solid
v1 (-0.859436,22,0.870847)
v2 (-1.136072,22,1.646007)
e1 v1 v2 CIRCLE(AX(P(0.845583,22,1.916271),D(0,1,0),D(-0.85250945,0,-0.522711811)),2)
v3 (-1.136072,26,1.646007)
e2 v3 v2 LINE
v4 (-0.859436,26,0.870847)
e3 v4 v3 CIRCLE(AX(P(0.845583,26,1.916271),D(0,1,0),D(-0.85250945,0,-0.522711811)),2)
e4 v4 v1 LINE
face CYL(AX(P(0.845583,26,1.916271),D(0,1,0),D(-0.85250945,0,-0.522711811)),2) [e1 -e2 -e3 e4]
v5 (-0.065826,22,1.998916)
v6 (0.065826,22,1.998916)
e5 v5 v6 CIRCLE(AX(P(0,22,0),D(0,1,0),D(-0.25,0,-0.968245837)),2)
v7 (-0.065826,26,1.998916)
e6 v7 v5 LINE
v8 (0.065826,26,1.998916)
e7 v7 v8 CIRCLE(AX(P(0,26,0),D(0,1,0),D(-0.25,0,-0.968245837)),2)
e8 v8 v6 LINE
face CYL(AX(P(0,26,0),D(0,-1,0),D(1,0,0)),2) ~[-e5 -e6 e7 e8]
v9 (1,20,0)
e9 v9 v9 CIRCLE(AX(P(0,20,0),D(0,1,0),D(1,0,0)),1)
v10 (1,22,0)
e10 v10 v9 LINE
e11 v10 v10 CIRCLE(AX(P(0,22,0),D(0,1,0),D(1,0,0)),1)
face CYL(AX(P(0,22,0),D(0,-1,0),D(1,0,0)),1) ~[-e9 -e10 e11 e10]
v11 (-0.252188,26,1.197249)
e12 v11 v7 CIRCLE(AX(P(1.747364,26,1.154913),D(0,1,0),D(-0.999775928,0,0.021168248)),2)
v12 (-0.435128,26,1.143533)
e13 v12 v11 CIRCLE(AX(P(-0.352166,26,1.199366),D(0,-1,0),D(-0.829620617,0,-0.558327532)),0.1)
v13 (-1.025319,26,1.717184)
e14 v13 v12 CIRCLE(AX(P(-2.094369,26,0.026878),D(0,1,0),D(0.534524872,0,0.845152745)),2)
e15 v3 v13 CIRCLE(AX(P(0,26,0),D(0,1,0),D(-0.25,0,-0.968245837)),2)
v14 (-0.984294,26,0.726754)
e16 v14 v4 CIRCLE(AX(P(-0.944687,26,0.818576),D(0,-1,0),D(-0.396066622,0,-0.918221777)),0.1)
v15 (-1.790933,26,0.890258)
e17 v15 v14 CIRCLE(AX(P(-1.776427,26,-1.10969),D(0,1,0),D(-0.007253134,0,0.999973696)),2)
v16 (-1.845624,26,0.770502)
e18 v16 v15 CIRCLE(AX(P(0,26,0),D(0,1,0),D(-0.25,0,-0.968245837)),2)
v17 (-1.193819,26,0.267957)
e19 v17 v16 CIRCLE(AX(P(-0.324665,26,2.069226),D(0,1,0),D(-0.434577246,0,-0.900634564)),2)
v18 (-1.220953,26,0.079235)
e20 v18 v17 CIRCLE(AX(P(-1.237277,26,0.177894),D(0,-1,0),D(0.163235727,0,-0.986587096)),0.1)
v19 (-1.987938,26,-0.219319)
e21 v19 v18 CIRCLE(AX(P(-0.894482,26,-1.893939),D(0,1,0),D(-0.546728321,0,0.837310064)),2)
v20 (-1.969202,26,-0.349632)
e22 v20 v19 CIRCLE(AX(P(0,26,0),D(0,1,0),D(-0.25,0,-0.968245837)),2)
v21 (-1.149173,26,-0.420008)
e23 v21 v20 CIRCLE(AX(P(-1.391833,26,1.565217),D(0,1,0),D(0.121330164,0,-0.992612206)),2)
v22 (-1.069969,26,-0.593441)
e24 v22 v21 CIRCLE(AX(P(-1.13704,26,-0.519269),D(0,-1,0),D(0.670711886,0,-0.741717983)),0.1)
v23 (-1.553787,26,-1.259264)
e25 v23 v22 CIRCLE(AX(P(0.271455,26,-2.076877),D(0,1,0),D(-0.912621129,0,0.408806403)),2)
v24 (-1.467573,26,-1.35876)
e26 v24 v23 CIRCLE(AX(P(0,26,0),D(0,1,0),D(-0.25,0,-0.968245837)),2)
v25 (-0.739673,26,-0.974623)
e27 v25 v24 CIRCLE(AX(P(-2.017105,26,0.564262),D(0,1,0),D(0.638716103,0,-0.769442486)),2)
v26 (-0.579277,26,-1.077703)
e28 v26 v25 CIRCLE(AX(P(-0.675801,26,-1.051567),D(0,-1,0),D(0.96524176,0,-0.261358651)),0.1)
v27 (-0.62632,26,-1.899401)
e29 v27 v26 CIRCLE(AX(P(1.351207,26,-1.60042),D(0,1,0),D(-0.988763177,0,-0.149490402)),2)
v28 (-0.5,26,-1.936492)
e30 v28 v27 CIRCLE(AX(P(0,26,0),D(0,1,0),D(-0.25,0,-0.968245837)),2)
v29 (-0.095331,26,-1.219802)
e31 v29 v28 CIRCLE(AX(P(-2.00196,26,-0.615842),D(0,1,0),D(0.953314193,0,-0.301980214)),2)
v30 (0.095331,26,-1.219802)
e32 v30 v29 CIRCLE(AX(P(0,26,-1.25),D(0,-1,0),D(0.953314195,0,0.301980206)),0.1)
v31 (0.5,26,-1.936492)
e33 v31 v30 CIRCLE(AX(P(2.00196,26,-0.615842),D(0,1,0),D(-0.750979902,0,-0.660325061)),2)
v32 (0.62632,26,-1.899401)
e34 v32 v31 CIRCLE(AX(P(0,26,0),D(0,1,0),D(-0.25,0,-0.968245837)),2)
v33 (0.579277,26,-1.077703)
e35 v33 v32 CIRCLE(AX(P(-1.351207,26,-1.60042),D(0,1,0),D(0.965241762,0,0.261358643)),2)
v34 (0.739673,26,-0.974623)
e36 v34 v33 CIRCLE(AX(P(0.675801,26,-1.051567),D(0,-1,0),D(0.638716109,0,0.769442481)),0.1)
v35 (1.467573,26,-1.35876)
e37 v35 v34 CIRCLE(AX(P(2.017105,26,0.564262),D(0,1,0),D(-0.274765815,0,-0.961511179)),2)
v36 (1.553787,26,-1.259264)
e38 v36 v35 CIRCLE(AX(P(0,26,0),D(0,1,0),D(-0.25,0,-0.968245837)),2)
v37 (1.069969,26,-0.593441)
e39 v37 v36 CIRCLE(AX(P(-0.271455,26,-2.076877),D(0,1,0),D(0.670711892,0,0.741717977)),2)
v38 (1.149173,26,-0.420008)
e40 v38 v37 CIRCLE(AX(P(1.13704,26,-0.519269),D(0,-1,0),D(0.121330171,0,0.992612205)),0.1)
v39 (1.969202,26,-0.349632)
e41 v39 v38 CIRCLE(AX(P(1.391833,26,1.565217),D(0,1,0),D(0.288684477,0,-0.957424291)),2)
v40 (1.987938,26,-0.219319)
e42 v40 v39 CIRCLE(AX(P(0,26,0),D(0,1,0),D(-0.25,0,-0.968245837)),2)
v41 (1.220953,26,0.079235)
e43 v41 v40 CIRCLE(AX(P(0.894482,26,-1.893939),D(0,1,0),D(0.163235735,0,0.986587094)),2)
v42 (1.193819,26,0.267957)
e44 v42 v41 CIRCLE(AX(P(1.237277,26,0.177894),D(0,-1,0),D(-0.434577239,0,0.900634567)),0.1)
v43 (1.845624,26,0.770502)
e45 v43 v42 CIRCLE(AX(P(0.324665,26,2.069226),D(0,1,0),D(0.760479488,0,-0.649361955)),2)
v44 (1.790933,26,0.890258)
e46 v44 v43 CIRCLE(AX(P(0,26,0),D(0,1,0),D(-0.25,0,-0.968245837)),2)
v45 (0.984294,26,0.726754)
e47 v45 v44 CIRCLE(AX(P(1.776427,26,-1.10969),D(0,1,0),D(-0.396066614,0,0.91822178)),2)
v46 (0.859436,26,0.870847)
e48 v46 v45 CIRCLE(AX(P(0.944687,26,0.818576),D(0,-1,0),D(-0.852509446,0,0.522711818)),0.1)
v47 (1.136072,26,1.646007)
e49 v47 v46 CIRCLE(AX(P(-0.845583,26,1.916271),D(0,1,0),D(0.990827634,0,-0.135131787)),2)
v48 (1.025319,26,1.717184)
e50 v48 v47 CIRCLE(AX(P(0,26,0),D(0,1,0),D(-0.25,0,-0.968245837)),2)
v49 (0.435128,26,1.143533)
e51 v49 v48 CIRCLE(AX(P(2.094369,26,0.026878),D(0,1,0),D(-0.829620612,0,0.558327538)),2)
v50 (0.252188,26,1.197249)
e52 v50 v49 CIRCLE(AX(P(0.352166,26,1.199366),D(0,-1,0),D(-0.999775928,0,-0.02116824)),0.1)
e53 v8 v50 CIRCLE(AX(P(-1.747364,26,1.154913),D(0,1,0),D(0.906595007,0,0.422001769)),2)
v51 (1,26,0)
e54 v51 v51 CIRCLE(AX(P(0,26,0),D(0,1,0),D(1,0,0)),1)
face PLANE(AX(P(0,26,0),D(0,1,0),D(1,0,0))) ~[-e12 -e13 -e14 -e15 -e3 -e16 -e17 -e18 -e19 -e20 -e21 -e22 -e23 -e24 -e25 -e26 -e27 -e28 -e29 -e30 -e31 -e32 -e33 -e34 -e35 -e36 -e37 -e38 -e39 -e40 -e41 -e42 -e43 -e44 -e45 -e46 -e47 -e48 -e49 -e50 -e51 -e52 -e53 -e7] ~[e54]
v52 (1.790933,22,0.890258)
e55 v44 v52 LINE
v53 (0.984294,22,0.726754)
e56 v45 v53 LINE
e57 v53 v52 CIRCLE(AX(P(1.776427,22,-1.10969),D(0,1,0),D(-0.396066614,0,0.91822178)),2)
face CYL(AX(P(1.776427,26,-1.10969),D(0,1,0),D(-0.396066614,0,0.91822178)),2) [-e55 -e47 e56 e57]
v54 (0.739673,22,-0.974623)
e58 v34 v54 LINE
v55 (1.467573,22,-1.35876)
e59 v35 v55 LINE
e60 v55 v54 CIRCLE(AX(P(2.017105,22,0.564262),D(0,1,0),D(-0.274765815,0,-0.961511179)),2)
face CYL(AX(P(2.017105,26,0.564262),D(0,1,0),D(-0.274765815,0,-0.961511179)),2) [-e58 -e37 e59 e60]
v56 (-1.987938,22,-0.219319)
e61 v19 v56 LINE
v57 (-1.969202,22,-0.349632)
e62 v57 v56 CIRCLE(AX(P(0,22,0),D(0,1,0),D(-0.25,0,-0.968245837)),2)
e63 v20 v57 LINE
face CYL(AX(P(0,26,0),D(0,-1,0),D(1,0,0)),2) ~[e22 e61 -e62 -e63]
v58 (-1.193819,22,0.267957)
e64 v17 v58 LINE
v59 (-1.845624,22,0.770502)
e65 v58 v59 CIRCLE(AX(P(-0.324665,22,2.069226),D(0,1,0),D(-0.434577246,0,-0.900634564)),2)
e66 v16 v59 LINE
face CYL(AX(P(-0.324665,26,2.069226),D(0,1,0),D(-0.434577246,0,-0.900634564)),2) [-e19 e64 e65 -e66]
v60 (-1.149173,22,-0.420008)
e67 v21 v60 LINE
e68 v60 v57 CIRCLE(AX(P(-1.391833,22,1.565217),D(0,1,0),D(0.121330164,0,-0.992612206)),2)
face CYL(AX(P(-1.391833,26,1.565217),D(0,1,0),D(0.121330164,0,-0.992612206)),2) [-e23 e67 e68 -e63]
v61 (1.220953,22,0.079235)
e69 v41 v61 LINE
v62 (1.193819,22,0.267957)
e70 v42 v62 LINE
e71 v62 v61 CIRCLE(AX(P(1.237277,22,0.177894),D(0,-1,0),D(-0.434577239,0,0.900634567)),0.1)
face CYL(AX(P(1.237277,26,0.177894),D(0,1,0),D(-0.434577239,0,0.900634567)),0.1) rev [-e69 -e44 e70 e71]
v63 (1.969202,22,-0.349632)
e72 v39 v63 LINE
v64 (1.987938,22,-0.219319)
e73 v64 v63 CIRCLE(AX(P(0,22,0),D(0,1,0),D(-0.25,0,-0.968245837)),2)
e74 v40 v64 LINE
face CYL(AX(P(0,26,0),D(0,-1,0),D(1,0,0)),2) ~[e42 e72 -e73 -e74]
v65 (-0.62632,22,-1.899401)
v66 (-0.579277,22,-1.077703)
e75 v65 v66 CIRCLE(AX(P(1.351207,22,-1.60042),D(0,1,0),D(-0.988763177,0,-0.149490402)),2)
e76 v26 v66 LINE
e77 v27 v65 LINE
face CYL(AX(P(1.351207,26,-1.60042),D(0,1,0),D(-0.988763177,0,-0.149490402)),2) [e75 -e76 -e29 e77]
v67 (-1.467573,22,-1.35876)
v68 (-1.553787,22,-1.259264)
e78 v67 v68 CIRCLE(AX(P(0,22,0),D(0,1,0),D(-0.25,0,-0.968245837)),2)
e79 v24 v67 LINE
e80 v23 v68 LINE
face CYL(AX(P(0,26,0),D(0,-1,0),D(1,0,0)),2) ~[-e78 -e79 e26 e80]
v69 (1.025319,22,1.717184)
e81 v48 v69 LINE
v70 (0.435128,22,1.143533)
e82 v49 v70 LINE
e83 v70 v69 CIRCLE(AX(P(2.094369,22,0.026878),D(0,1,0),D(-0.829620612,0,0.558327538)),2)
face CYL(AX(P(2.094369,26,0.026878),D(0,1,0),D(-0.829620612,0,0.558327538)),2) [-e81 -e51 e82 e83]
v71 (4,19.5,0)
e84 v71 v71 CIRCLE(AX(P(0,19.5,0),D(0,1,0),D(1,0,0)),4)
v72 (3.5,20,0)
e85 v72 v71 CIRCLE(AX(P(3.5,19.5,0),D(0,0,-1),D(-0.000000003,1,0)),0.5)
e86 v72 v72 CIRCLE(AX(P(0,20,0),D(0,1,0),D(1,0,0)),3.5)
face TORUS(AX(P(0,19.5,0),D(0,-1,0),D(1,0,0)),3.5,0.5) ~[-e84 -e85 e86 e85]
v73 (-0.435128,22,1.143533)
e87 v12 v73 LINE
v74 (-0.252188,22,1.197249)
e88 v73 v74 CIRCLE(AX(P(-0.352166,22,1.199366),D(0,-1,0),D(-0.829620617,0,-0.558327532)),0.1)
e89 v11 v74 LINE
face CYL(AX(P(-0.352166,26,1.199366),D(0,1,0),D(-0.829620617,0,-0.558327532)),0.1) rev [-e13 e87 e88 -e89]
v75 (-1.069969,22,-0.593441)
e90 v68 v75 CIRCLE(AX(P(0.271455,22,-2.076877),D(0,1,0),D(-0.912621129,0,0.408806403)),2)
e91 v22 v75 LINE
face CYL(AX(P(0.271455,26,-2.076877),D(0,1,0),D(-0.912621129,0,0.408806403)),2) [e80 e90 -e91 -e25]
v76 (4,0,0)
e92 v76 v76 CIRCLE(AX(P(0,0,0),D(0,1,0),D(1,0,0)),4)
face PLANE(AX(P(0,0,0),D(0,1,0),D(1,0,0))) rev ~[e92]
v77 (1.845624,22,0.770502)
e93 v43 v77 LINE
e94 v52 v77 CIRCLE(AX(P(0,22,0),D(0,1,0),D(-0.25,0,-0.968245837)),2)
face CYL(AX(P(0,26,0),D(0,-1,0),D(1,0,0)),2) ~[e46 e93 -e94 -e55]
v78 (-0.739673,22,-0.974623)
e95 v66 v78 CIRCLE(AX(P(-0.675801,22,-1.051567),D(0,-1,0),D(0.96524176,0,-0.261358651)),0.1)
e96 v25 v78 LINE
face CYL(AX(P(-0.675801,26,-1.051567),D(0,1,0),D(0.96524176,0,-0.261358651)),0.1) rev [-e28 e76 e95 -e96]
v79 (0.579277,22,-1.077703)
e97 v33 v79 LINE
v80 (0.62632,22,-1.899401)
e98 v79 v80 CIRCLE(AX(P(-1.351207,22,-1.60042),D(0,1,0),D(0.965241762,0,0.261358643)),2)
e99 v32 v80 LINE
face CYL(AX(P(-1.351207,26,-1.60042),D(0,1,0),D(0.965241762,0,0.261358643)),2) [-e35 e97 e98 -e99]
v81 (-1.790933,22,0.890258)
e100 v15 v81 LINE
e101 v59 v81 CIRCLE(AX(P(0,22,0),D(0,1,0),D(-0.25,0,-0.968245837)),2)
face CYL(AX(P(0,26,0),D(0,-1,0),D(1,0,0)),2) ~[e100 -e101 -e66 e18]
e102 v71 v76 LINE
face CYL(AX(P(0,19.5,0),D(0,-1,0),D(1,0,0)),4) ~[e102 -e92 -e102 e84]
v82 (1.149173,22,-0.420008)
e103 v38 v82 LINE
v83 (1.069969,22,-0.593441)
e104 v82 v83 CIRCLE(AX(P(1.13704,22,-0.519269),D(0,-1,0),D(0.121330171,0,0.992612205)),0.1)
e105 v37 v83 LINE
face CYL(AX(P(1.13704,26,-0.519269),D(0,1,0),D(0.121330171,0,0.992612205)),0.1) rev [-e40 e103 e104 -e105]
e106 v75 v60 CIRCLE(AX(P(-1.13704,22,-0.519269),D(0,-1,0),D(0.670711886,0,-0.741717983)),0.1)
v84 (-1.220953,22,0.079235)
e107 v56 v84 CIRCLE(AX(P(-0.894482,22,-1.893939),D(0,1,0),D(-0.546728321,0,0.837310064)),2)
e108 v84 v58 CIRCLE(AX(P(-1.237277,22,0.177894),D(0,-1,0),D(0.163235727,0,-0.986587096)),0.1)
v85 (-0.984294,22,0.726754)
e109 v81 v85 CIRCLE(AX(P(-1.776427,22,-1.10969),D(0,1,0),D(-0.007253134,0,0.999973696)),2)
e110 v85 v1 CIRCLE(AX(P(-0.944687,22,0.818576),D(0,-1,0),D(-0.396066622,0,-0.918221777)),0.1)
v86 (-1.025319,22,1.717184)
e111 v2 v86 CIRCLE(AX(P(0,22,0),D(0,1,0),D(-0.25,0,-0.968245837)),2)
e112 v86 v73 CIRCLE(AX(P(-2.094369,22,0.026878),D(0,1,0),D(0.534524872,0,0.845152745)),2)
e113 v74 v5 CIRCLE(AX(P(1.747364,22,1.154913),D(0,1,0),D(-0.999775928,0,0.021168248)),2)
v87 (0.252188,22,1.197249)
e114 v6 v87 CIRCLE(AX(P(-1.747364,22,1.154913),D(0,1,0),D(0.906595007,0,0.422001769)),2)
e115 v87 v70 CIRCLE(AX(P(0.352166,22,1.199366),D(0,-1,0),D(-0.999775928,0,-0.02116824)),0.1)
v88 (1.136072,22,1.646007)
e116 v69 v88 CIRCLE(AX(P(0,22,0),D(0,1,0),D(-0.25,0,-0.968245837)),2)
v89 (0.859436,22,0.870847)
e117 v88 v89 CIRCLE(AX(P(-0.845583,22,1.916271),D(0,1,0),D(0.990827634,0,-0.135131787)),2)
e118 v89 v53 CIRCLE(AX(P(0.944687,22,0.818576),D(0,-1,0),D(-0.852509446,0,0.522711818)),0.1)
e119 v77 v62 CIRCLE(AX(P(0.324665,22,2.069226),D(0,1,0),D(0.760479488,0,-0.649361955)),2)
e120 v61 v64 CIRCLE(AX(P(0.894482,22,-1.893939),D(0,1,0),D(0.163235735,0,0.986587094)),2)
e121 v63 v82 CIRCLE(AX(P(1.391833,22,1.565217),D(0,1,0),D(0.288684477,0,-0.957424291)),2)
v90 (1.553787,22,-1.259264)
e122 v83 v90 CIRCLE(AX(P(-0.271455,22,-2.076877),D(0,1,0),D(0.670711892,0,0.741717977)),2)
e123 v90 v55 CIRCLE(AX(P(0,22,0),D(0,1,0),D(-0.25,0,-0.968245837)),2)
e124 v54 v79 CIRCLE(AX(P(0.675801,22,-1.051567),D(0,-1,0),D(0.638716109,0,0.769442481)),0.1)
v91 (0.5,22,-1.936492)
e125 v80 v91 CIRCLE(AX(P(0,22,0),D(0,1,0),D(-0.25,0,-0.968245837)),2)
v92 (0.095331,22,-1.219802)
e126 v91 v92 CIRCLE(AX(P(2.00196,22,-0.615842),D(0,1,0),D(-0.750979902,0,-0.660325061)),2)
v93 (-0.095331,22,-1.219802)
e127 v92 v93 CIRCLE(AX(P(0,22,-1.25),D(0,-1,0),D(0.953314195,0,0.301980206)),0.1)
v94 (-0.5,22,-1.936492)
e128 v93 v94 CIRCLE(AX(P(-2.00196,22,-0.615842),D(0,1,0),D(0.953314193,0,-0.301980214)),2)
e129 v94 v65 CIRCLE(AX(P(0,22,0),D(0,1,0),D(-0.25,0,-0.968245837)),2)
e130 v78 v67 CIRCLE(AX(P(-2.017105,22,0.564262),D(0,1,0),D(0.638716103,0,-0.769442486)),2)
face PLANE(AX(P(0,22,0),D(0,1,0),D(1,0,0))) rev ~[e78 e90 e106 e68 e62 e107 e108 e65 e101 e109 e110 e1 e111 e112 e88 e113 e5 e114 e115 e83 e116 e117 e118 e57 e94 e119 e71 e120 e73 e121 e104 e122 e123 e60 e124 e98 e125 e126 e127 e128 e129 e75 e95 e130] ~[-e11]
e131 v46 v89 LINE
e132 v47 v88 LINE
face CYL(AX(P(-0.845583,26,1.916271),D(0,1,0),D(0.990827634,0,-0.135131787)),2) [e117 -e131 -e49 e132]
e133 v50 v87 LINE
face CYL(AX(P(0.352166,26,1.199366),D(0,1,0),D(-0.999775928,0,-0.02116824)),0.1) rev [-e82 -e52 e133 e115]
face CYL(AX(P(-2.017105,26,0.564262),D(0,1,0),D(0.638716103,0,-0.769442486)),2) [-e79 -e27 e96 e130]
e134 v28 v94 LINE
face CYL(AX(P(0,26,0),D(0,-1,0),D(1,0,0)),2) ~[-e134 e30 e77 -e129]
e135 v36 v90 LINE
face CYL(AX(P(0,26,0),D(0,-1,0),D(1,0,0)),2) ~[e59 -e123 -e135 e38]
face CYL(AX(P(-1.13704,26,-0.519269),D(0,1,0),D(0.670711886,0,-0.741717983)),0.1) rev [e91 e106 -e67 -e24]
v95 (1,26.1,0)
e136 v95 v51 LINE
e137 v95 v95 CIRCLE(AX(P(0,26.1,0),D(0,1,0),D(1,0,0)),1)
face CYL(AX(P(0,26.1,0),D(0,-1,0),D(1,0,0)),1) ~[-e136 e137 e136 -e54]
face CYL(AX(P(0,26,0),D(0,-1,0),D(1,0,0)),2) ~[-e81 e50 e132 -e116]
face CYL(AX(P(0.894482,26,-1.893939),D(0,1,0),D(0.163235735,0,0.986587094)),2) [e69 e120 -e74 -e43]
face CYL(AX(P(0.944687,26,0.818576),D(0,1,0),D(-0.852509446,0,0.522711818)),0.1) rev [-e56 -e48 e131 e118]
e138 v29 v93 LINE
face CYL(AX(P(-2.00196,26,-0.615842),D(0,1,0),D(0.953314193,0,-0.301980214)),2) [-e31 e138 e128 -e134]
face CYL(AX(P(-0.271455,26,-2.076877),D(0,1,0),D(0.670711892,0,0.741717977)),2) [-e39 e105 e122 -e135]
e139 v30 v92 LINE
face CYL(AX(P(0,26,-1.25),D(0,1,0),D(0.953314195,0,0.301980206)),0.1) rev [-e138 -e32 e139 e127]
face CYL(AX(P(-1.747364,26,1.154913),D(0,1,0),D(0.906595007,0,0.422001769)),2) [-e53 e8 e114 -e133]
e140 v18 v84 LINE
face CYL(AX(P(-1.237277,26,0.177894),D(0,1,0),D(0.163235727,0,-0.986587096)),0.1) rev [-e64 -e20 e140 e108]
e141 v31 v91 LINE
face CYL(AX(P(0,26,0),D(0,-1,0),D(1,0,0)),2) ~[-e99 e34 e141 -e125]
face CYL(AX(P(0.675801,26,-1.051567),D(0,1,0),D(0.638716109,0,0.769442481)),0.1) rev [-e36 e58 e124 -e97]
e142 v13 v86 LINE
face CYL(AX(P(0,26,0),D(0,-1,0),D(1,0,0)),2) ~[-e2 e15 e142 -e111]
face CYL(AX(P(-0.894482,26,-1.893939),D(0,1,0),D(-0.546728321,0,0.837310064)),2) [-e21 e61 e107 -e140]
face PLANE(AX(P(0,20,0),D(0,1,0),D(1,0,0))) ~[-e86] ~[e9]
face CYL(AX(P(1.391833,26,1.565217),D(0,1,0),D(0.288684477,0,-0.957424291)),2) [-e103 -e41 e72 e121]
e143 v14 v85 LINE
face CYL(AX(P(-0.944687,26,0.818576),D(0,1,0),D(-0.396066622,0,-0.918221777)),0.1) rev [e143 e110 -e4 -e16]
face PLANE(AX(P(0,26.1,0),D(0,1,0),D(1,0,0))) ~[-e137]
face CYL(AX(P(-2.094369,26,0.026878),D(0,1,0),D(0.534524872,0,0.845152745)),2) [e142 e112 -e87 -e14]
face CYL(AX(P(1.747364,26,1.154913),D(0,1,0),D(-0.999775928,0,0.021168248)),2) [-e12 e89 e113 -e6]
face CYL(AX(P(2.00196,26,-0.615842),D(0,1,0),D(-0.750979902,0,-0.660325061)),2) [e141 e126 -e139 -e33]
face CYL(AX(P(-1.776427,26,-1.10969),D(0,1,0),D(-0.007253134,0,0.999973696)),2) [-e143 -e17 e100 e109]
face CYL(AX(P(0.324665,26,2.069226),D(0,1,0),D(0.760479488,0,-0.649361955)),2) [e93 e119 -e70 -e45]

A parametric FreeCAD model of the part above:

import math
import FreeCAD as App
import Part
import Sketcher
from FreeCAD import Vector

doc = App.newDocument("Part")
body = doc.addObject("PartDesign::Body", "Body")

# Sketch on XY plane
sketch1 = doc.addObject("Sketcher::SketchObject", "Sketch")
body.addObject(sketch1)
sketch1.AttachmentSupport = (doc.XY_Plane, [""])
sketch1.MapMode = "FlatFace"
sketch1.addGeometry([
    Part.LineSegment(Vector(0, 26.1, 0), Vector(0, 0, 0)),  # 0
    Part.LineSegment(Vector(0, 0, 0), Vector(4, 0, 0)),  # 1
    Part.LineSegment(Vector(4, 0, 0), Vector(4, 19.5, 0)),  # 2
    Part.ArcOfCircle(Part.Circle(Vector(3.5, 19.5, 0), Vector(0, 0, 1), 0.5), math.radians(0), math.radians(90)),  # 3
    Part.LineSegment(Vector(3.5, 20, 0), Vector(1, 20, 0)),  # 4
    Part.LineSegment(Vector(1, 20, 0), Vector(1, 22, 0)),  # 5
    Part.LineSegment(Vector(1, 22, 0), Vector(2, 22, 0)),  # 6
    Part.LineSegment(Vector(2, 22, 0), Vector(2, 26, 0)),  # 7
    Part.LineSegment(Vector(2, 26, 0), Vector(1, 26, 0)),  # 8
    Part.LineSegment(Vector(1, 26, 0), Vector(1, 26.1, 0)),  # 9
    Part.LineSegment(Vector(1, 26.1, 0), Vector(0, 26.1, 0)),  # 10
], False)
sketch1.addConstraint([
    Sketcher.Constraint("Coincident", 0, 2, 1, 1),
    Sketcher.Constraint("Coincident", 1, 2, 2, 1),
    Sketcher.Constraint("Tangent", 2, 2, 3, 1),
    Sketcher.Constraint("Tangent", 3, 2, 4, 1),
    Sketcher.Constraint("Coincident", 4, 2, 5, 1),
    Sketcher.Constraint("Coincident", 5, 2, 6, 1),
    Sketcher.Constraint("Coincident", 6, 2, 7, 1),
    Sketcher.Constraint("Coincident", 7, 2, 8, 1),
    Sketcher.Constraint("Coincident", 8, 2, 9, 1),
    Sketcher.Constraint("Coincident", 9, 2, 10, 1),
    Sketcher.Constraint("Coincident", 10, 2, 0, 1),
    Sketcher.Constraint("Vertical", 0),
    Sketcher.Constraint("Horizontal", 1),
    Sketcher.Constraint("Vertical", 2),
    Sketcher.Constraint("Horizontal", 4),
    Sketcher.Constraint("Vertical", 5),
    Sketcher.Constraint("Horizontal", 6),
    Sketcher.Constraint("Vertical", 7),
    Sketcher.Constraint("Horizontal", 8),
    Sketcher.Constraint("Vertical", 9),
    Sketcher.Constraint("Horizontal", 10),
    Sketcher.Constraint("Coincident", 0, 2, -1, 1),
    Sketcher.Constraint("Vertical", 5, 2, 8, 2),
    Sketcher.Constraint("Equal", 8, 10),
    Sketcher.Constraint("Equal", 1, 7),
    Sketcher.Constraint("Radius", 3, 0.5),
    Sketcher.Constraint("DistanceX", 1, 1, 1, 2, 4.0),
    Sketcher.Constraint("DistanceX", 6, 1, 6, 2, 1.0),
    Sketcher.Constraint("DistanceY", 5, 1, 5, 2, 2.0),
    Sketcher.Constraint("DistanceY", 0, 2, 0, 1, 26.1),
    Sketcher.Constraint("DistanceY", 2, 1, 2, 2, 19.5),
])
revolution = doc.addObject("PartDesign::Revolution", "Revolution")
body.addObject(revolution)
revolution.Profile = sketch1
revolution.ReferenceAxis = (sketch1, ["V_Axis"])
revolution.Angle = 360

# Sketch on XZ plane
sketch2 = doc.addObject("Sketcher::SketchObject", "Sketch001")
body.addObject(sketch2)
sketch2.AttachmentSupport = (doc.XZ_Plane, [""])
sketch2.MapMode = "FlatFace"
sketch2.AttachmentOffset = App.Placement(Vector(0, 0, -26), App.Rotation())
sketch2.addGeometry([
    Part.ArcOfCircle(Part.Circle(Vector(0, 0, 0), Vector(0, 0, 1), 2), math.radians(-104), math.radians(-76)),
    Part.ArcOfCircle(Part.Circle(Vector(-2, -0.62, 0), Vector(0, 0, 1), 2), math.radians(-41), math.radians(-18)),
    Part.ArcOfCircle(Part.Circle(Vector(0, -1.25, 0), Vector(0, 0, 1), 0.1), math.radians(18), math.radians(162)),
    Part.ArcOfCircle(Part.Circle(Vector(2, -0.62, 0), Vector(0, 0, 1), 2), math.radians(-162), math.radians(-139)),
], False)
sketch2.addConstraint([
    Sketcher.Constraint("Coincident", 0, 1, 1, 1),
    Sketcher.Constraint("Tangent", 1, 2, 2, 2),
    Sketcher.Constraint("Tangent", 2, 1, 3, 1),
    Sketcher.Constraint("Coincident", 3, 2, 0, 2),
    Sketcher.Constraint("Coincident", 0, 3, -1, 1),
    Sketcher.Constraint("Equal", 0, 1),
    Sketcher.Constraint("Equal", 1, 3),
    Sketcher.Constraint("Symmetric", 1, 3, 3, 3, -2),
    Sketcher.Constraint("Radius", 0, 2.0),
    Sketcher.Constraint("Radius", 2, 0.1),
    Sketcher.Constraint("DistanceX", 0, 1, 3, 2, 1.0),
    Sketcher.Constraint("DistanceY", 2, 3, -1, 1, 1.25),
])
pocket1 = doc.addObject("PartDesign::Pocket", "Pocket")
body.addObject(pocket1)
pocket1.Profile = sketch2
pocket1.Length = 4
pocket1.Reversed = True
doc.recompute()

polarpattern = doc.addObject("PartDesign::PolarPattern", "PolarPattern")
body.addObject(polarpattern)
polarpattern.Originals = [pocket1]
polarpattern.Axis = (doc.Y_Axis, [""])
polarpattern.Angle = 360
polarpattern.Occurrences = 11
body.Tip = polarpattern

doc.recompute()
